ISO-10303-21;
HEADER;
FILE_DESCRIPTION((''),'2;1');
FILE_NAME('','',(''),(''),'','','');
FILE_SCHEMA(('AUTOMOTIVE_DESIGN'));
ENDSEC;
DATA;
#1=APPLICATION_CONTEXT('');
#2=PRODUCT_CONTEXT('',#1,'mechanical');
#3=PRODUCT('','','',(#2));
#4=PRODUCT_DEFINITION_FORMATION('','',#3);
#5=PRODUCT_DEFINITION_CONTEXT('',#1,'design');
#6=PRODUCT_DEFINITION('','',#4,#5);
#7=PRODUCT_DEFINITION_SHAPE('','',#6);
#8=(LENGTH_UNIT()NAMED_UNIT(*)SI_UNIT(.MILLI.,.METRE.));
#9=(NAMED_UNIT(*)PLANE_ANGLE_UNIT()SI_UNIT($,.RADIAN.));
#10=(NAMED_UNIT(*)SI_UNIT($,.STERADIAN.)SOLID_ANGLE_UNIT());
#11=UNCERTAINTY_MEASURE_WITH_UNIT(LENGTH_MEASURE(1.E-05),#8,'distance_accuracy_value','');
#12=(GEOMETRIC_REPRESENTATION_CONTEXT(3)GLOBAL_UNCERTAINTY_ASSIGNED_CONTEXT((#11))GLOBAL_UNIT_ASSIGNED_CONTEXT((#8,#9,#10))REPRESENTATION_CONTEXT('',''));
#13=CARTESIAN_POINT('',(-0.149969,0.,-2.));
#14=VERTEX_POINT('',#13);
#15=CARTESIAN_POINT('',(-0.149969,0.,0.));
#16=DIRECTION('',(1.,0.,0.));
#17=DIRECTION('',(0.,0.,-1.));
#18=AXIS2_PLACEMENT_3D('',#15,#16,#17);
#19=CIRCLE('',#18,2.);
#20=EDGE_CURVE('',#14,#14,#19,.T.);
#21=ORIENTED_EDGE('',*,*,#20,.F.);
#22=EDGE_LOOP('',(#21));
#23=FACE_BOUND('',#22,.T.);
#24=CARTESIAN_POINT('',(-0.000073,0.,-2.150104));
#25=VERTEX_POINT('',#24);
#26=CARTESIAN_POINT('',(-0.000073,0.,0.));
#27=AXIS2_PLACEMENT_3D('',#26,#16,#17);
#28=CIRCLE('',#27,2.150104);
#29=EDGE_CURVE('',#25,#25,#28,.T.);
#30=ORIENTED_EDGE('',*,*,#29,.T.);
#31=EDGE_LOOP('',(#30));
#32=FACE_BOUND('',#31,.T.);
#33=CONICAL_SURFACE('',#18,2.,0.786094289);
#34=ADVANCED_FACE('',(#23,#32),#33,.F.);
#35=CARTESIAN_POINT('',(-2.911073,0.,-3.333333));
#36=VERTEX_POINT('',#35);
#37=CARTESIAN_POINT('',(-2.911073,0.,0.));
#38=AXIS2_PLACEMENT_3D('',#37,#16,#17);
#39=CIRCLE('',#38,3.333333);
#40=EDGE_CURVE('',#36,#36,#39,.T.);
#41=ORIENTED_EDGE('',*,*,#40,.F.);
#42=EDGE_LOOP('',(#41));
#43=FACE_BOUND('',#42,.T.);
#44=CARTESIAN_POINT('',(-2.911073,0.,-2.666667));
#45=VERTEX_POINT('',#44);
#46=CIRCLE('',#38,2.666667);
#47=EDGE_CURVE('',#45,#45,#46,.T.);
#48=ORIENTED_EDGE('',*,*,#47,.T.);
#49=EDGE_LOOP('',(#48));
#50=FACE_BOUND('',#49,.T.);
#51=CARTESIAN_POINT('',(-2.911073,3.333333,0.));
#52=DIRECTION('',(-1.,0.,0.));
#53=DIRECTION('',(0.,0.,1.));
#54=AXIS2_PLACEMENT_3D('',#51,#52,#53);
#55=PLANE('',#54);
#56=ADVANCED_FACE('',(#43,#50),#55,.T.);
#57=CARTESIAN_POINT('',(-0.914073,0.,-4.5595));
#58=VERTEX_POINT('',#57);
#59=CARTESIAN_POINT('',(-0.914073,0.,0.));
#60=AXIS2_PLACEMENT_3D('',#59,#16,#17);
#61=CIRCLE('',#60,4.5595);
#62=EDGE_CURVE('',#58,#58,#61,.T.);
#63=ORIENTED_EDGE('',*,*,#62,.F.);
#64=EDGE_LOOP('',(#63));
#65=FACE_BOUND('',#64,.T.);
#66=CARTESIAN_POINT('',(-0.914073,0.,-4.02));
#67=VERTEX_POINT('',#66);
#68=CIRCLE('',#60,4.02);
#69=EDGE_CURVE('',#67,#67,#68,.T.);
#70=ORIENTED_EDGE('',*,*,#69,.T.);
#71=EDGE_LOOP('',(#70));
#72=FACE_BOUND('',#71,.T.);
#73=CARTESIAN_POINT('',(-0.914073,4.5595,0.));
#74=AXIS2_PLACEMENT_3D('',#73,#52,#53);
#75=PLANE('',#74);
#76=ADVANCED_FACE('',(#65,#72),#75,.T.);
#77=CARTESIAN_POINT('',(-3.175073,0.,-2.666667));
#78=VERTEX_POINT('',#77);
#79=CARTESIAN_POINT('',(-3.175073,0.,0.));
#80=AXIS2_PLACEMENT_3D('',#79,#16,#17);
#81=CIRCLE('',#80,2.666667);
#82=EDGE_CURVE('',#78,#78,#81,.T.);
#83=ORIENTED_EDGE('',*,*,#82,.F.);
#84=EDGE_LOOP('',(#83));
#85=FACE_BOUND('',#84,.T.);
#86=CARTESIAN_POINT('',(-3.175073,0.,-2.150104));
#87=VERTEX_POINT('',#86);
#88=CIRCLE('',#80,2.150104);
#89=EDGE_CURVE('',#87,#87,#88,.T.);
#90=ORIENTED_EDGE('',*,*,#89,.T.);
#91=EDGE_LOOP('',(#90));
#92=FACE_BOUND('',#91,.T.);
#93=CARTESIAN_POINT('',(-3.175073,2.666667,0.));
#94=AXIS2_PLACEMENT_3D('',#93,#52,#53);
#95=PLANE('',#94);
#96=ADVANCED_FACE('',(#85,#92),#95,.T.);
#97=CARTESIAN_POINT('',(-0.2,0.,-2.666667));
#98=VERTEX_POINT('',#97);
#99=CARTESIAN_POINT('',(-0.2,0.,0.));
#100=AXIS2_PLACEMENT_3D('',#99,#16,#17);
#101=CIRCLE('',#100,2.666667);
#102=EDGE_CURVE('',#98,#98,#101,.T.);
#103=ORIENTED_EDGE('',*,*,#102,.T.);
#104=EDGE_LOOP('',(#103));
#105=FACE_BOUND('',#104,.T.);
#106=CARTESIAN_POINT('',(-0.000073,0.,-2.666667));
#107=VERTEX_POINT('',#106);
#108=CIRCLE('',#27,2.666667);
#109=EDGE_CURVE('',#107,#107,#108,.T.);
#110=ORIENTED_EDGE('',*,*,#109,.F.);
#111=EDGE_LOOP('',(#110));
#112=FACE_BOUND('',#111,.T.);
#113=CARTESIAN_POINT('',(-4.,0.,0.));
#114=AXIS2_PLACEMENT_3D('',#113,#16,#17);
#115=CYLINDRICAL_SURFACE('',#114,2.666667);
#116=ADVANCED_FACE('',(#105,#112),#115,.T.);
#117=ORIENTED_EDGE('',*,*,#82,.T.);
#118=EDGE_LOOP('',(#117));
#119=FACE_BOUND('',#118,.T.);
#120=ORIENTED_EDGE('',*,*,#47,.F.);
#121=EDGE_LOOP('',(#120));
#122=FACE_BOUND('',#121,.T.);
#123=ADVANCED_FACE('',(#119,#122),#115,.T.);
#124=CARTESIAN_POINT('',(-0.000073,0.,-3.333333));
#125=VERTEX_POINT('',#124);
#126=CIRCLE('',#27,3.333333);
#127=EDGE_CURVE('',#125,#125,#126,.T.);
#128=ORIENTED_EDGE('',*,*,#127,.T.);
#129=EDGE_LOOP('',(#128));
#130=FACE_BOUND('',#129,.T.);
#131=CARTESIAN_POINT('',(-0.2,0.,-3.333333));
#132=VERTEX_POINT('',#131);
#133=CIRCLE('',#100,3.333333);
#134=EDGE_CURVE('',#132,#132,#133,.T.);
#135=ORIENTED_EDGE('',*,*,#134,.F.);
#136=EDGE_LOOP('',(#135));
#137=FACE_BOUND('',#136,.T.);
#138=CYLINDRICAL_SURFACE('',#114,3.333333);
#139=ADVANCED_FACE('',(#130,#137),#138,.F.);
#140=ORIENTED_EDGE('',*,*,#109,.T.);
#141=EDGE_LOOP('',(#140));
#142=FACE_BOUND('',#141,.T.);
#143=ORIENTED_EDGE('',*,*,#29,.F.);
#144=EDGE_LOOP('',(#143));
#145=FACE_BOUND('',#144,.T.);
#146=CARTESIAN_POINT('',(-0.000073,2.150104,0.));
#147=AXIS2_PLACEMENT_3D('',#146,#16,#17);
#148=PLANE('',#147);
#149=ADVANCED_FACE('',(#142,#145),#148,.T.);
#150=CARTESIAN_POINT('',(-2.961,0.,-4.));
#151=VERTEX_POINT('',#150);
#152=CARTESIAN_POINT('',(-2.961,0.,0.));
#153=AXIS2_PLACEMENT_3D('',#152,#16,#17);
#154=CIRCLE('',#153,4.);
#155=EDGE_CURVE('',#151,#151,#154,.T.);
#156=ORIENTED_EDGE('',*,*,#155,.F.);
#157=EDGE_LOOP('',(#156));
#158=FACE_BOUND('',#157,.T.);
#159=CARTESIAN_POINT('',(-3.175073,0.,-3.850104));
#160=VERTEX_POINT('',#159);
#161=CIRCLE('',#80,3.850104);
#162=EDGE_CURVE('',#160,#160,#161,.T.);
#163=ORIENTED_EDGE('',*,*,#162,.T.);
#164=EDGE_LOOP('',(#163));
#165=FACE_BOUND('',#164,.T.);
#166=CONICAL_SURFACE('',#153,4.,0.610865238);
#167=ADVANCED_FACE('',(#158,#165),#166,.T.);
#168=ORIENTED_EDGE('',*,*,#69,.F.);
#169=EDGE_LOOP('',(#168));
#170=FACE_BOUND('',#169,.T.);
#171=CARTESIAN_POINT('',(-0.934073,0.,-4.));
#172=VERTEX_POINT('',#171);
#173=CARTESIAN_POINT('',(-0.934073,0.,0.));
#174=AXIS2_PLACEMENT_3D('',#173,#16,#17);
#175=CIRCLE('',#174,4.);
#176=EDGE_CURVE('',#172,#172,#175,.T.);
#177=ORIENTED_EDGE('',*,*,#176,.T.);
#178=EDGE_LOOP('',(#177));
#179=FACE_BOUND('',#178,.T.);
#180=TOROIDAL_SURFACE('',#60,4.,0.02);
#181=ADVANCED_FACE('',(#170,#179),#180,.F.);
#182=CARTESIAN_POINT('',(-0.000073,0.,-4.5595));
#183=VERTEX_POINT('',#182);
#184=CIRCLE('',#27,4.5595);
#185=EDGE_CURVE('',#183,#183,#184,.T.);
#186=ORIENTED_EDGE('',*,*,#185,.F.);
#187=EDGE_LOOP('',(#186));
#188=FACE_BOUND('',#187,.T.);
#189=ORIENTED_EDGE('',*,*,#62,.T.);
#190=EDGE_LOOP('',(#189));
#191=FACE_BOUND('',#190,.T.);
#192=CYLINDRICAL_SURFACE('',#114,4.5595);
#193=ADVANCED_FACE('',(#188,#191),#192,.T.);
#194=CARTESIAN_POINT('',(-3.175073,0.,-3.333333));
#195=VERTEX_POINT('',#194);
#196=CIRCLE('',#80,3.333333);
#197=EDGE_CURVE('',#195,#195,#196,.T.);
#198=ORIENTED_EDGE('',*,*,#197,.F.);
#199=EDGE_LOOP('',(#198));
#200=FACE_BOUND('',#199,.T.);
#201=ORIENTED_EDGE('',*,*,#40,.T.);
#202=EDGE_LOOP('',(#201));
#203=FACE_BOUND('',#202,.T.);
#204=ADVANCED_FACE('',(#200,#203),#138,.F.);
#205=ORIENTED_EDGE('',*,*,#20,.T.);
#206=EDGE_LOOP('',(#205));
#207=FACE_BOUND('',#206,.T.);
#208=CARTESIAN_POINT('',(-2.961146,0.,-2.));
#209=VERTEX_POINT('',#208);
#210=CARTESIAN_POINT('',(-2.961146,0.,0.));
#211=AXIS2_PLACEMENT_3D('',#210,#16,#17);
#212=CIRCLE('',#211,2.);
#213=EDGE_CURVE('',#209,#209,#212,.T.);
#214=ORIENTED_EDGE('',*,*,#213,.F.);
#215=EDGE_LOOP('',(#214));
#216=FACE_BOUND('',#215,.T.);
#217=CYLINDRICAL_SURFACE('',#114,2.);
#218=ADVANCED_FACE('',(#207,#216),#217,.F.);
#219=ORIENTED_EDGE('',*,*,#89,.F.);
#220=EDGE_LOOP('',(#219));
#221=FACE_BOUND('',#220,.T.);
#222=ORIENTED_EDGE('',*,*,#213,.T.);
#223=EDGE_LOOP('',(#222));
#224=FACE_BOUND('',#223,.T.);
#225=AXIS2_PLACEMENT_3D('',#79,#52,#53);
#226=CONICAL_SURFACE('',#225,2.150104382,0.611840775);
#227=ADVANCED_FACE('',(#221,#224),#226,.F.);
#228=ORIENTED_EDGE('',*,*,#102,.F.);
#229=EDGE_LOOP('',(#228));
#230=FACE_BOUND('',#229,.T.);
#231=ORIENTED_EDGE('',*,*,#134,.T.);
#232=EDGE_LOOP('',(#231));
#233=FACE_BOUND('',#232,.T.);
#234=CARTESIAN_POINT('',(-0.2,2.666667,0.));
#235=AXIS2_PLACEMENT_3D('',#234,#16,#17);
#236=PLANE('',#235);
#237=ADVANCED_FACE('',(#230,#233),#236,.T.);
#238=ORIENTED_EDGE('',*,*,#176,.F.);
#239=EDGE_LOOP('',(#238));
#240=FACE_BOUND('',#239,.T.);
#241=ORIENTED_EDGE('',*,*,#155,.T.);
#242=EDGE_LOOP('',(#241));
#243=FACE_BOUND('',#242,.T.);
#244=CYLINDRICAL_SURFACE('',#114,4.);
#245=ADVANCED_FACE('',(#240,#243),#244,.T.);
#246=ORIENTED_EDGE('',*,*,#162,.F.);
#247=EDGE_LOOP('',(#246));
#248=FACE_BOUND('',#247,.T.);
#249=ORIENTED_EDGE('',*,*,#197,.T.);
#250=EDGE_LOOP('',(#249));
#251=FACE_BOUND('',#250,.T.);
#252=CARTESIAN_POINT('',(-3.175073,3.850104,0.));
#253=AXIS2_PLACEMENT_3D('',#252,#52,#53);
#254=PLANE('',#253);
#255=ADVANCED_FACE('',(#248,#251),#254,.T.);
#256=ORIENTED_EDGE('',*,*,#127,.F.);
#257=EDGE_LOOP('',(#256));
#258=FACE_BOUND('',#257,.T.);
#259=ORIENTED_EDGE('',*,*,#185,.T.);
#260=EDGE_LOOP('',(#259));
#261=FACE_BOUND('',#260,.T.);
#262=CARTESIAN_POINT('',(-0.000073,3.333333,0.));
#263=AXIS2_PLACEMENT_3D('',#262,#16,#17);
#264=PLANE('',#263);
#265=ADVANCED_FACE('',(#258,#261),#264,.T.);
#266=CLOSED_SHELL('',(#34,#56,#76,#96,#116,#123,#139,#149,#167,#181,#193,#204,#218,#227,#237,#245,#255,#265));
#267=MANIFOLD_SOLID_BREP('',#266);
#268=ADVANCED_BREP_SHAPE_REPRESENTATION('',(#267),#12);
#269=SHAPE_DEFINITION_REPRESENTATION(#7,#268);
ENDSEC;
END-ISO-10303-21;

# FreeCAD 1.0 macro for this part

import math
import FreeCAD as App
import Part
import Sketcher

V = App.Vector
Q = App.Units.Quantity

doc = App.newDocument("Part")
params = doc.addObject("Spreadsheet::Sheet", "Params")
for row, (alias, value) in enumerate([
    ("sketch1_radius", "0.02 mm"),
    ("revolution_angle", "360 deg"),
], start=1):
    params.set(f"A{row}", alias)
    params.set(f"B{row}", "=" + value)
    params.setAlias(f"B{row}", alias)

body = doc.addObject("PartDesign::Body", "Body")

# Sketch on XY plane
sketch1 = body.newObject("Sketcher::SketchObject", "Sketch")
sketch1.AttachmentSupport = (doc.getObject("XY_Plane"), [""])
sketch1.MapMode = "FlatFace"
sketch1.addGeometry(Part.LineSegment(V(-2.911, 3.333, 0), V(-2.911, 2.667, 0)), False)
sketch1.addGeometry(Part.LineSegment(V(-2.911, 2.667, 0), V(-3.175, 2.667, 0)), False)
sketch1.addGeometry(Part.LineSegment(V(-3.175, 2.667, 0), V(-3.175, 2.15, 0)), False)
sketch1.addGeometry(Part.LineSegment(V(-3.175, 2.15, 0), V(-2.961, 2, 0)), False)
sketch1.addGeometry(Part.LineSegment(V(-2.961, 2, 0), V(-0.15, 2, 0)), False)
sketch1.addGeometry(Part.LineSegment(V(-0.15, 2, 0), V(0, 2.15, 0)), False)
sketch1.addGeometry(Part.LineSegment(V(0, 2.15, 0), V(0, 2.667, 0)), False)
sketch1.addGeometry(Part.LineSegment(V(0, 2.667, 0), V(-0.2, 2.667, 0)), False)
sketch1.addGeometry(Part.LineSegment(V(-0.2, 2.667, 0), V(-0.2, 3.333, 0)), False)
sketch1.addGeometry(Part.LineSegment(V(-0.2, 3.333, 0), V(0, 3.333, 0)), False)
sketch1.addGeometry(Part.LineSegment(V(0, 3.333, 0), V(0, 4.559, 0)), False)
sketch1.addGeometry(Part.LineSegment(V(0, 4.559, 0), V(-0.914, 4.559, 0)), False)
sketch1.addGeometry(Part.LineSegment(V(-0.914, 4.559, 0), V(-0.914, 4.02, 0)), False)
sketch1.addGeometry(Part.ArcOfCircle(Part.Circle(V(-0.914, 4, 0), V(0, 0, 1), 0.02), math.radians(180), math.radians(450)), False)
sketch1.addGeometry(Part.LineSegment(V(-0.934, 4, 0), V(-2.961, 4, 0)), False)
sketch1.addGeometry(Part.LineSegment(V(-2.961, 4, 0), V(-3.175, 3.85, 0)), False)
sketch1.addGeometry(Part.LineSegment(V(-3.175, 3.85, 0), V(-3.175, 3.333, 0)), False)
sketch1.addGeometry(Part.LineSegment(V(-3.175, 3.333, 0), V(-2.911, 3.333, 0)), False)
sketch1.addConstraint(Sketcher.Constraint("Coincident", 0, 2, 1, 1))
sketch1.addConstraint(Sketcher.Constraint("Coincident", 1, 2, 2, 1))
sketch1.addConstraint(Sketcher.Constraint("Coincident", 2, 2, 3, 1))
sketch1.addConstraint(Sketcher.Constraint("Coincident", 3, 2, 4, 1))
sketch1.addConstraint(Sketcher.Constraint("Coincident", 4, 2, 5, 1))
sketch1.addConstraint(Sketcher.Constraint("Coincident", 5, 2, 6, 1))
sketch1.addConstraint(Sketcher.Constraint("Coincident", 6, 2, 7, 1))
sketch1.addConstraint(Sketcher.Constraint("Coincident", 7, 2, 8, 1))
sketch1.addConstraint(Sketcher.Constraint("Coincident", 8, 2, 9, 1))
sketch1.addConstraint(Sketcher.Constraint("Coincident", 9, 2, 10, 1))
sketch1.addConstraint(Sketcher.Constraint("Coincident", 10, 2, 11, 1))
sketch1.addConstraint(Sketcher.Constraint("Coincident", 11, 2, 12, 1))
sketch1.addConstraint(Sketcher.Constraint("Coincident", 12, 2, 13, 2))
sketch1.addConstraint(Sketcher.Constraint("Coincident", 13, 1, 14, 1))
sketch1.addConstraint(Sketcher.Constraint("Coincident", 14, 2, 15, 1))
sketch1.addConstraint(Sketcher.Constraint("Coincident", 15, 2, 16, 1))
sketch1.addConstraint(Sketcher.Constraint("Coincident", 16, 2, 17, 1))
sketch1.addConstraint(Sketcher.Constraint("Coincident", 17, 2, 0, 1))
sketch1.addConstraint(Sketcher.Constraint("Vertical", 0))
sketch1.addConstraint(Sketcher.Constraint("Horizontal", 1))
sketch1.addConstraint(Sketcher.Constraint("Vertical", 2))
sketch1.addConstraint(Sketcher.Constraint("Horizontal", 4))
sketch1.addConstraint(Sketcher.Constraint("Vertical", 6))
sketch1.addConstraint(Sketcher.Constraint("Horizontal", 7))
sketch1.addConstraint(Sketcher.Constraint("Vertical", 8))
sketch1.addConstraint(Sketcher.Constraint("Horizontal", 9))
sketch1.addConstraint(Sketcher.Constraint("Vertical", 10))
sketch1.addConstraint(Sketcher.Constraint("Horizontal", 11))
sketch1.addConstraint(Sketcher.Constraint("Vertical", 12))
sketch1.addConstraint(Sketcher.Constraint("Horizontal", 14))
sketch1.addConstraint(Sketcher.Constraint("Vertical", 16))
sketch1.addConstraint(Sketcher.Constraint("Horizontal", 17))
sketch1.addConstraint(Sketcher.Constraint("Horizontal", 2, 2, 5, 2))
sketch1.addConstraint(Sketcher.Constraint("Horizontal", 1, 2, 6, 2))
sketch1.addConstraint(Sketcher.Constraint("Horizontal", 9, 2, 16, 2))
sketch1.addConstraint(Sketcher.Constraint("Vertical", 6, 2, 9, 2))
sketch1.addConstraint(Sketcher.Constraint("Vertical", 13, 3, 11, 2))
sketch1.addConstraint(Sketcher.Constraint("Vertical", 2, 2, 15, 2))
sketch1.addConstraint(Sketcher.Constraint("Equal", 3, 15))
sketch1.addConstraint(Sketcher.Constraint("Angle", 15, Q("-145 deg")))
sketch1.addConstraint(Sketcher.Constraint("Radius", 13, 0.02))
sketch1.addConstraint(Sketcher.Constraint("DistanceY", -1, 1, 13, 3, 4.0))
sketch1.addConstraint(Sketcher.Constraint("DistanceY", -1, 1, 3, 2, 2.0))
sketch1.addConstraint(Sketcher.Constraint("DistanceY", -1, 1, 13, 1, 4.0))
sketch1.addConstraint(Sketcher.Constraint("DistanceX", 7, 2, -1, 1, 0.2))
sketch1.addConstraint(Sketcher.Constraint("DistanceY", 2, 2, 15, 2, 1.7))
sketch1.addConstraint(Sketcher.Constraint("DistanceX", 1, 2, 1, 1, 0.264))
sketch1.addConstraint(Sketcher.Constraint("DistanceX", 11, 2, 11, 1, 0.914))
sketch1.addConstraint(Sketcher.Constraint("DistanceY", 12, 2, 12, 1, 0.5395))
sketch1.addConstraint(Sketcher.Constraint("DistanceX", 14, 2, -1, 1, 2.961))
sketch1.addConstraint(Sketcher.Constraint("DistanceX", 0, 2, 13, 3, 1.997))
sketch1.addConstraint(Sketcher.Constraint("DistanceY", 16, 2, 16, 1, 0.516771))
sketch1.addConstraint(Sketcher.Constraint("DistanceX", 4, 1, 4, 2, 2.811178))
sketch1.addConstraint(Sketcher.Constraint("DistanceX", 7, 2, 7, 1, 0.199927))
sketch1.addConstraint(Sketcher.Constraint("DistanceY", 0, 2, 0, 1, 0.666667))
sketch1.setExpression("Constraints[40]", "Params.sketch1_radius")
revolution = body.newObject("PartDesign::Revolution", "Revolution")
revolution.Profile = sketch1
revolution.ReferenceAxis = (sketch1, ["H_Axis"])
revolution.setExpression("Angle", "Params.revolution_angle")

doc.recompute()
